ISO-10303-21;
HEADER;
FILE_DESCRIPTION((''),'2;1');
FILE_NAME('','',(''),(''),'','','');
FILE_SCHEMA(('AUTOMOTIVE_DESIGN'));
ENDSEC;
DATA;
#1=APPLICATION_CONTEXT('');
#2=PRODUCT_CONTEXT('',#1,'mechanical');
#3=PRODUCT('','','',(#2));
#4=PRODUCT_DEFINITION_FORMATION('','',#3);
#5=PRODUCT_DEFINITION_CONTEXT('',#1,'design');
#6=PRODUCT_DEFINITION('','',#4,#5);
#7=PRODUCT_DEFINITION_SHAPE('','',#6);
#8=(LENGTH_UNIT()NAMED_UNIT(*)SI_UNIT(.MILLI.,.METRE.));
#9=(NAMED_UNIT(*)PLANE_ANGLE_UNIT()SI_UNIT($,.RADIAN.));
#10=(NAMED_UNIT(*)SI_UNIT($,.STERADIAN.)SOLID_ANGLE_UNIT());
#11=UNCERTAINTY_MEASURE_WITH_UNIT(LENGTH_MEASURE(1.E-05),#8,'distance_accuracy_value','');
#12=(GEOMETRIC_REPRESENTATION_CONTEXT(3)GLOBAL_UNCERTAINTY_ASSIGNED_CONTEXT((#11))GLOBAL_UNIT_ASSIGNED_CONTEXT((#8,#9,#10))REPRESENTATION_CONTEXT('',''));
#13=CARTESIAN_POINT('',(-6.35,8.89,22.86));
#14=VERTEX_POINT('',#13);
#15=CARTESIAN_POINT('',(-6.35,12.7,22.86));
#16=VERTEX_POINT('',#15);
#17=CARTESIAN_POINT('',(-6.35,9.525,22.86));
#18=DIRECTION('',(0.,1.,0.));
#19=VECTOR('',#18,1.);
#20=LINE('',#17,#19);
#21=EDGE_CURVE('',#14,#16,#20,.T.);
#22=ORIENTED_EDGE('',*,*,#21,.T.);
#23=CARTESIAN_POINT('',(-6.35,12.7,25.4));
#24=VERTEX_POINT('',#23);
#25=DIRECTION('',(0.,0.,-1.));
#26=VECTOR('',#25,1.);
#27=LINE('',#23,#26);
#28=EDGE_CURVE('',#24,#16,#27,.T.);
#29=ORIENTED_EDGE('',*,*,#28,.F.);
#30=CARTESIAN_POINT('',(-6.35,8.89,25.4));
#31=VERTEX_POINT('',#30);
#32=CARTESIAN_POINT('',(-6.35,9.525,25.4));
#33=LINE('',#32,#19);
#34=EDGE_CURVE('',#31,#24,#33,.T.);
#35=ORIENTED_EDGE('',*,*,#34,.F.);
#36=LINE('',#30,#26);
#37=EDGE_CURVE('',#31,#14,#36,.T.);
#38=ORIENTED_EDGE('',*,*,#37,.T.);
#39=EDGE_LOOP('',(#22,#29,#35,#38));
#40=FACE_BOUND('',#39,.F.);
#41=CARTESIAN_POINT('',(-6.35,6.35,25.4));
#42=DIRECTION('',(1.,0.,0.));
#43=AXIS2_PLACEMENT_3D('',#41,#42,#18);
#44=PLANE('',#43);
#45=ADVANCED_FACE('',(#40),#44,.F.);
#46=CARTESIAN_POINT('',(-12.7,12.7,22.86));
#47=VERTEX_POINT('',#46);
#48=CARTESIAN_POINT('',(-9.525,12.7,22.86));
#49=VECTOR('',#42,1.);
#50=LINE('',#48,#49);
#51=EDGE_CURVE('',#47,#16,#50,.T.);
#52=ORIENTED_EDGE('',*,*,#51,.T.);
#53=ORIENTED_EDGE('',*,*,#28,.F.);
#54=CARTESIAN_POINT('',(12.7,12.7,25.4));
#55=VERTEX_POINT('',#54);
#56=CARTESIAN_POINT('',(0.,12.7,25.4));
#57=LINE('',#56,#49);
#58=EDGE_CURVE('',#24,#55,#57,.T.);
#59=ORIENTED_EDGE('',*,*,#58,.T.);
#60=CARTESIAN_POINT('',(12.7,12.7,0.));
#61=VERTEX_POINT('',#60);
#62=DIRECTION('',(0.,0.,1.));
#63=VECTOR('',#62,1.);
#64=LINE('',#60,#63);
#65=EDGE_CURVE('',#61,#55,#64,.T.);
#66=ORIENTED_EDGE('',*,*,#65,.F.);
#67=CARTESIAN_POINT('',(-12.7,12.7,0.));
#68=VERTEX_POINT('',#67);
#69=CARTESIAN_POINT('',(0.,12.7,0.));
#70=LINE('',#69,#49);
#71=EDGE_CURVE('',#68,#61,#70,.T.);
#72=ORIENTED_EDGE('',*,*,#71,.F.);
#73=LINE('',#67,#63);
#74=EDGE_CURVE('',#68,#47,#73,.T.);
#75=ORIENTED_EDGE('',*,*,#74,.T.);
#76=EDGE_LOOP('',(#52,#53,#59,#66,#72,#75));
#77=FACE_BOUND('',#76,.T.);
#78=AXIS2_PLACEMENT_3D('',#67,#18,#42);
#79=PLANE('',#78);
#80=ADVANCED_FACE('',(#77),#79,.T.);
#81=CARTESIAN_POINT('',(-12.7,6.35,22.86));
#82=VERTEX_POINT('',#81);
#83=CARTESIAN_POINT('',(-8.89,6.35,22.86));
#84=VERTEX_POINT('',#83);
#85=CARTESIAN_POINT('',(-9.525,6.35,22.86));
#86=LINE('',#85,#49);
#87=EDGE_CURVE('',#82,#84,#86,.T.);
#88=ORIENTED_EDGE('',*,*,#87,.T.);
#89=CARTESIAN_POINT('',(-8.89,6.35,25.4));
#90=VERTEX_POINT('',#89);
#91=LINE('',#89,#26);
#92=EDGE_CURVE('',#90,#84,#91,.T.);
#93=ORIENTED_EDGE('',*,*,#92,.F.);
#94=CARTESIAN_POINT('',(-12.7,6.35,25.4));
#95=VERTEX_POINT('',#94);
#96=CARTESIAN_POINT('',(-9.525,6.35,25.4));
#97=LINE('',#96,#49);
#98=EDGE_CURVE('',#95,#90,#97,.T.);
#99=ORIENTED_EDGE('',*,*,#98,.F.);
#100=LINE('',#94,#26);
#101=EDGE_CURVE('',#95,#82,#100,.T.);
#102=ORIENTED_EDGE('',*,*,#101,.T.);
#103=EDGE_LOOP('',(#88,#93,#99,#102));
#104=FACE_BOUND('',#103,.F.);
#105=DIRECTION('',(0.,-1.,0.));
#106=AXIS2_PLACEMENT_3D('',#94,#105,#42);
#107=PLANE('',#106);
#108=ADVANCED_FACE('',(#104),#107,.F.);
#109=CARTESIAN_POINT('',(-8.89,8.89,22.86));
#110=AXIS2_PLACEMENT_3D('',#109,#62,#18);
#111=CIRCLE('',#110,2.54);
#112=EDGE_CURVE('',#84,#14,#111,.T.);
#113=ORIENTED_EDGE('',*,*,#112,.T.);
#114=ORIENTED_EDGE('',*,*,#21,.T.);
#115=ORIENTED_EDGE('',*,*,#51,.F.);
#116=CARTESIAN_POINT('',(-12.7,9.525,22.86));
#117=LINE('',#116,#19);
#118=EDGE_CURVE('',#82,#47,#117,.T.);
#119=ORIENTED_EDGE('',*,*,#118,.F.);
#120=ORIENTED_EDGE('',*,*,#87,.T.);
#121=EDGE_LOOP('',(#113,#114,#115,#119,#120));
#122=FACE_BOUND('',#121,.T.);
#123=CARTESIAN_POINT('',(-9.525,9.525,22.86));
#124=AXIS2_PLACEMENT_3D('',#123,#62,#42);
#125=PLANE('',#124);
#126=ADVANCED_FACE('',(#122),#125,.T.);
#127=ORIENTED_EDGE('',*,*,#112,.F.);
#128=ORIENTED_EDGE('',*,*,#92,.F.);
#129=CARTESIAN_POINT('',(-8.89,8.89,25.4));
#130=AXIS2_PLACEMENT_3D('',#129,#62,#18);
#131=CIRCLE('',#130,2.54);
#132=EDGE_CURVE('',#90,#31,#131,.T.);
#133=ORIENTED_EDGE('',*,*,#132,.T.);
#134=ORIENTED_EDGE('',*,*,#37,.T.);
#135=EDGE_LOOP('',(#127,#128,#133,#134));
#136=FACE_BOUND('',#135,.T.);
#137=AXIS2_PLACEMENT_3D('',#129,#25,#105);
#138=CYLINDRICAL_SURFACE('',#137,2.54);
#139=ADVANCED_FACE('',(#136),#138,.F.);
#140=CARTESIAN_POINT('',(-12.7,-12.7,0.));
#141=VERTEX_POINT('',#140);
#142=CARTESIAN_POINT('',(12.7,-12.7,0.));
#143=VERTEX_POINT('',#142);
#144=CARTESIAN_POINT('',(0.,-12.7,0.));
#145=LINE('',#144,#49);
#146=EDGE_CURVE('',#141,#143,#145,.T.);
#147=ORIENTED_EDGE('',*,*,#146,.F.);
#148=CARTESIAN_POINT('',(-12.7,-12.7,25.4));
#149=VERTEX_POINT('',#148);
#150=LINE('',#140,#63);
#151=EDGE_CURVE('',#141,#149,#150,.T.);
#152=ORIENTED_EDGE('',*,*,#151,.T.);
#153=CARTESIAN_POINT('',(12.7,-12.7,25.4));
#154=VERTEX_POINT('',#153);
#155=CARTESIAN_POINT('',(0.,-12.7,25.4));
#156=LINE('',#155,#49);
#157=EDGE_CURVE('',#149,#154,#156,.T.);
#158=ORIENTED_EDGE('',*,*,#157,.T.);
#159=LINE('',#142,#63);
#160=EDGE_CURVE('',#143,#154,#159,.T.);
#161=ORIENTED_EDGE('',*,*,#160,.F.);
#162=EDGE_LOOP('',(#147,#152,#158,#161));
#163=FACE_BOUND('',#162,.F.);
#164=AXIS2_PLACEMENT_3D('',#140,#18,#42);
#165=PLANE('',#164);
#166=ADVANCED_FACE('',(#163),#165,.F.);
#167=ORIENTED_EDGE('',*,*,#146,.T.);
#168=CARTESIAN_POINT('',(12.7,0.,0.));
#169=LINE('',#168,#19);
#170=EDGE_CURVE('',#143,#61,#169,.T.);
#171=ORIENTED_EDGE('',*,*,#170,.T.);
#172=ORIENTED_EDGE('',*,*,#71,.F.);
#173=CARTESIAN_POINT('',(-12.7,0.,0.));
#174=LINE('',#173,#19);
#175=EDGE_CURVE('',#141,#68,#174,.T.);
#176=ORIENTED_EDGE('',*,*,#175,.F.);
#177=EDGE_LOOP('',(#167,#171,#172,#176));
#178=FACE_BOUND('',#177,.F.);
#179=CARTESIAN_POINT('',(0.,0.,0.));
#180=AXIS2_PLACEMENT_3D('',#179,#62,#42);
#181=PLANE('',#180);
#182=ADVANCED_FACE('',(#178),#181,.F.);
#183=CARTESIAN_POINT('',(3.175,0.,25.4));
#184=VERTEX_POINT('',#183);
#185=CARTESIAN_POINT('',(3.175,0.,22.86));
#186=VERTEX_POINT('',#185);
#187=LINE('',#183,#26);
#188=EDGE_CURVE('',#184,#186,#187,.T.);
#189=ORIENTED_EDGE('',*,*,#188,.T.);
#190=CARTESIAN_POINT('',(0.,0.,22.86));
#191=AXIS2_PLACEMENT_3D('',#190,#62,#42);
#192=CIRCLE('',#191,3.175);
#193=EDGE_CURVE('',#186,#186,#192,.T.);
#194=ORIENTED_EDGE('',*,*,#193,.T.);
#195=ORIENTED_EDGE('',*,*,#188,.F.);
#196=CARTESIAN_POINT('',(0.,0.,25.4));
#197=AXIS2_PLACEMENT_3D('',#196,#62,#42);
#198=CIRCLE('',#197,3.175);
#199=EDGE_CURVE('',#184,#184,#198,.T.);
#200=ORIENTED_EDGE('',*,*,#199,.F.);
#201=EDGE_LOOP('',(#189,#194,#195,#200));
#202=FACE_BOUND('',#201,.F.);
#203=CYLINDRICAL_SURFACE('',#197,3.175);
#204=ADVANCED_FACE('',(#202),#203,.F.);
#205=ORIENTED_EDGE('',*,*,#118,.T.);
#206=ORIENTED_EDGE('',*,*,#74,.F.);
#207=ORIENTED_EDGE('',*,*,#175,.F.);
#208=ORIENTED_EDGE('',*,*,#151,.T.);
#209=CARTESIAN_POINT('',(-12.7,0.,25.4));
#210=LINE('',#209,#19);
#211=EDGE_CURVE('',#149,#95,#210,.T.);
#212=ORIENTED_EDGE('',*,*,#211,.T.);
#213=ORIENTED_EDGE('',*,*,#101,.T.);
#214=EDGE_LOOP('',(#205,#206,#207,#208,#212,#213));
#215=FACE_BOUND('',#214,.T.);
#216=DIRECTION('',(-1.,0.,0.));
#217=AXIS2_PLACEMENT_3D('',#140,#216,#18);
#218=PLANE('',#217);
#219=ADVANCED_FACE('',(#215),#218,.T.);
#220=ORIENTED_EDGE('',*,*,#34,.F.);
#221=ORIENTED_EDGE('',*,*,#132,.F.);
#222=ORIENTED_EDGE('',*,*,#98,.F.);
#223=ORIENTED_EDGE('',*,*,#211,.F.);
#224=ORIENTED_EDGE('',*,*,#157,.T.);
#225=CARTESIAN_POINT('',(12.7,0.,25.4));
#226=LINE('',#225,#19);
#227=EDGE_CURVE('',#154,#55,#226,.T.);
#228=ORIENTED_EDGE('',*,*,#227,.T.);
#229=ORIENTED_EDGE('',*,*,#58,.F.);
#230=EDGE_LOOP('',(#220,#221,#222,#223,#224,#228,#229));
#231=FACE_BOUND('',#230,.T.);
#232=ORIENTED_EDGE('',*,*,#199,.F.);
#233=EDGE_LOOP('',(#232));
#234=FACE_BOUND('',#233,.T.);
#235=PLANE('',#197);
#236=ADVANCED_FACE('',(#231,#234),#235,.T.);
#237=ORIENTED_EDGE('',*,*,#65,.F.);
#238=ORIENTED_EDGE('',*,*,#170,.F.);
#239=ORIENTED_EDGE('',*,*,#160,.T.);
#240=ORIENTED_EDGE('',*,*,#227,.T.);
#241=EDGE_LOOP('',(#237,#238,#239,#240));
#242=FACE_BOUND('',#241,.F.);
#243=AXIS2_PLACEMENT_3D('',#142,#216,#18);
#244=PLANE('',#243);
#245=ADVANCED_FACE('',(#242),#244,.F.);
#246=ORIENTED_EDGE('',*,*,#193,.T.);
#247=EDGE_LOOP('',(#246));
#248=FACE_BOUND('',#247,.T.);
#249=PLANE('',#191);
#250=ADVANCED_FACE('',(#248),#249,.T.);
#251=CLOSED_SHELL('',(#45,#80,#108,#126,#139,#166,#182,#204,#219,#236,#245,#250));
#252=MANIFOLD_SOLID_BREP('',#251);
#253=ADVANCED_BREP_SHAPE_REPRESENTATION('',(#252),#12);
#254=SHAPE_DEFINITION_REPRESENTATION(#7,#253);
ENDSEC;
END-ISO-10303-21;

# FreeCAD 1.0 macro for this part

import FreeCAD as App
import Part
import Sketcher
from FreeCAD import Vector
Q = App.Units.Quantity


def edges_at(feature, points):
    """Names of the edges that pass closest to the given points."""
    edges = feature.Shape.Edges
    near = lambda p: min(range(len(edges)), key=lambda i: edges[i].distToShape(Part.Vertex(*p))[0])
    return sorted({f"Edge{near(p) + 1}" for p in points})

doc = App.newDocument("Part")
body = doc.addObject("PartDesign::Body", "Body")

# Sketch on XY plane
sketch1 = body.newObject("Sketcher::SketchObject", "Sketch")
sketch1.AttachmentSupport = (doc.getObject("XY_Plane"), [""])
sketch1.MapMode = "FlatFace"
sketch1.addGeometry(Part.LineSegment(Vector(-13, 13, 0), Vector(-13, -13, 0)), False)
sketch1.addGeometry(Part.LineSegment(Vector(-13, -13, 0), Vector(13, -13, 0)), False)
sketch1.addGeometry(Part.LineSegment(Vector(13, -13, 0), Vector(13, 13, 0)), False)
sketch1.addGeometry(Part.LineSegment(Vector(13, 13, 0), Vector(-13, 13, 0)), False)
sketch1.addConstraint(Sketcher.Constraint("Coincident", 0, 2, 1, 1))
sketch1.addConstraint(Sketcher.Constraint("Coincident", 1, 2, 2, 1))
sketch1.addConstraint(Sketcher.Constraint("Coincident", 2, 2, 3, 1))
sketch1.addConstraint(Sketcher.Constraint("Coincident", 3, 2, 0, 1))
sketch1.addConstraint(Sketcher.Constraint("Vertical", 0))
sketch1.addConstraint(Sketcher.Constraint("Horizontal", 1))
sketch1.addConstraint(Sketcher.Constraint("Vertical", 2))
sketch1.addConstraint(Sketcher.Constraint("Horizontal", 3))
sketch1.addConstraint(Sketcher.Constraint("Symmetric", 0, 2, 2, 2, -1, 1))
sketch1.addConstraint(Sketcher.Constraint("Equal", 3, 0))
sketch1.addConstraint(Sketcher.Constraint("DistanceX", 1, 1, 1, 2, Q("1 in")))
pad1 = body.newObject("PartDesign::Pad", "Pad")
pad1.Profile = sketch1
pad1.Length = Q("1 in")

# Sketch on XY plane
sketch2 = body.newObject("Sketcher::SketchObject", "Sketch001")
sketch2.AttachmentSupport = (doc.getObject("XY_Plane"), [""])
sketch2.MapMode = "FlatFace"
sketch2.AttachmentOffset = App.Placement(Vector(0, 0, 1 * 25.4), App.Rotation())
sketch2.addGeometry(Part.LineSegment(Vector(-12.7, 12.7, 0), Vector(-12.7, 6.3, 0)), False)
sketch2.addGeometry(Part.LineSegment(Vector(-12.7, 6.3, 0), Vector(-6.3, 6.3, 0)), False)
sketch2.addGeometry(Part.LineSegment(Vector(-6.3, 6.3, 0), Vector(-6.3, 12.7, 0)), False)
sketch2.addGeometry(Part.LineSegment(Vector(-6.3, 12.7, 0), Vector(-12.7, 12.7, 0)), False)
sketch2.addGeometry(Part.Circle(Vector(0, 0, 0), Vector(0, 0, 1), 3.2), False)
sketch2.addConstraint(Sketcher.Constraint("Coincident", 0, 2, 1, 1))
sketch2.addConstraint(Sketcher.Constraint("Coincident", 1, 2, 2, 1))
sketch2.addConstraint(Sketcher.Constraint("Coincident", 2, 2, 3, 1))
sketch2.addConstraint(Sketcher.Constraint("Coincident", 3, 2, 0, 1))
sketch2.addConstraint(Sketcher.Constraint("Vertical", 0))
sketch2.addConstraint(Sketcher.Constraint("Horizontal", 1))
sketch2.addConstraint(Sketcher.Constraint("Vertical", 2))
sketch2.addConstraint(Sketcher.Constraint("Horizontal", 3))
sketch2.addConstraint(Sketcher.Constraint("Coincident", 4, 3, -1, 1))
sketch2.addConstraint(Sketcher.Constraint("Equal", 3, 0))
sketch2.addConstraint(Sketcher.Constraint("Diameter", 4, Q("0.25 in")))
sketch2.addConstraint(Sketcher.Constraint("DistanceX", 1, 1, 1, 2, Q("0.25 in")))
sketch2.addConstraint(Sketcher.Constraint("DistanceX", 0, 2, -1, 1, Q("0.5 in")))
sketch2.addConstraint(Sketcher.Constraint("DistanceY", -1, 1, 2, 2, Q("0.5 in")))
pocket1 = body.newObject("PartDesign::Pocket", "Pocket")
pocket1.Profile = sketch2
pocket1.Length = Q("0.1 in")
doc.recompute()

fillet = body.newObject("PartDesign::Fillet", "Fillet")
fillet.Base = (pocket1, edges_at(pocket1, [(-6.35, 6.35, 24.13)]))
fillet.Radius = Q("0.1 in")

doc.recompute()
